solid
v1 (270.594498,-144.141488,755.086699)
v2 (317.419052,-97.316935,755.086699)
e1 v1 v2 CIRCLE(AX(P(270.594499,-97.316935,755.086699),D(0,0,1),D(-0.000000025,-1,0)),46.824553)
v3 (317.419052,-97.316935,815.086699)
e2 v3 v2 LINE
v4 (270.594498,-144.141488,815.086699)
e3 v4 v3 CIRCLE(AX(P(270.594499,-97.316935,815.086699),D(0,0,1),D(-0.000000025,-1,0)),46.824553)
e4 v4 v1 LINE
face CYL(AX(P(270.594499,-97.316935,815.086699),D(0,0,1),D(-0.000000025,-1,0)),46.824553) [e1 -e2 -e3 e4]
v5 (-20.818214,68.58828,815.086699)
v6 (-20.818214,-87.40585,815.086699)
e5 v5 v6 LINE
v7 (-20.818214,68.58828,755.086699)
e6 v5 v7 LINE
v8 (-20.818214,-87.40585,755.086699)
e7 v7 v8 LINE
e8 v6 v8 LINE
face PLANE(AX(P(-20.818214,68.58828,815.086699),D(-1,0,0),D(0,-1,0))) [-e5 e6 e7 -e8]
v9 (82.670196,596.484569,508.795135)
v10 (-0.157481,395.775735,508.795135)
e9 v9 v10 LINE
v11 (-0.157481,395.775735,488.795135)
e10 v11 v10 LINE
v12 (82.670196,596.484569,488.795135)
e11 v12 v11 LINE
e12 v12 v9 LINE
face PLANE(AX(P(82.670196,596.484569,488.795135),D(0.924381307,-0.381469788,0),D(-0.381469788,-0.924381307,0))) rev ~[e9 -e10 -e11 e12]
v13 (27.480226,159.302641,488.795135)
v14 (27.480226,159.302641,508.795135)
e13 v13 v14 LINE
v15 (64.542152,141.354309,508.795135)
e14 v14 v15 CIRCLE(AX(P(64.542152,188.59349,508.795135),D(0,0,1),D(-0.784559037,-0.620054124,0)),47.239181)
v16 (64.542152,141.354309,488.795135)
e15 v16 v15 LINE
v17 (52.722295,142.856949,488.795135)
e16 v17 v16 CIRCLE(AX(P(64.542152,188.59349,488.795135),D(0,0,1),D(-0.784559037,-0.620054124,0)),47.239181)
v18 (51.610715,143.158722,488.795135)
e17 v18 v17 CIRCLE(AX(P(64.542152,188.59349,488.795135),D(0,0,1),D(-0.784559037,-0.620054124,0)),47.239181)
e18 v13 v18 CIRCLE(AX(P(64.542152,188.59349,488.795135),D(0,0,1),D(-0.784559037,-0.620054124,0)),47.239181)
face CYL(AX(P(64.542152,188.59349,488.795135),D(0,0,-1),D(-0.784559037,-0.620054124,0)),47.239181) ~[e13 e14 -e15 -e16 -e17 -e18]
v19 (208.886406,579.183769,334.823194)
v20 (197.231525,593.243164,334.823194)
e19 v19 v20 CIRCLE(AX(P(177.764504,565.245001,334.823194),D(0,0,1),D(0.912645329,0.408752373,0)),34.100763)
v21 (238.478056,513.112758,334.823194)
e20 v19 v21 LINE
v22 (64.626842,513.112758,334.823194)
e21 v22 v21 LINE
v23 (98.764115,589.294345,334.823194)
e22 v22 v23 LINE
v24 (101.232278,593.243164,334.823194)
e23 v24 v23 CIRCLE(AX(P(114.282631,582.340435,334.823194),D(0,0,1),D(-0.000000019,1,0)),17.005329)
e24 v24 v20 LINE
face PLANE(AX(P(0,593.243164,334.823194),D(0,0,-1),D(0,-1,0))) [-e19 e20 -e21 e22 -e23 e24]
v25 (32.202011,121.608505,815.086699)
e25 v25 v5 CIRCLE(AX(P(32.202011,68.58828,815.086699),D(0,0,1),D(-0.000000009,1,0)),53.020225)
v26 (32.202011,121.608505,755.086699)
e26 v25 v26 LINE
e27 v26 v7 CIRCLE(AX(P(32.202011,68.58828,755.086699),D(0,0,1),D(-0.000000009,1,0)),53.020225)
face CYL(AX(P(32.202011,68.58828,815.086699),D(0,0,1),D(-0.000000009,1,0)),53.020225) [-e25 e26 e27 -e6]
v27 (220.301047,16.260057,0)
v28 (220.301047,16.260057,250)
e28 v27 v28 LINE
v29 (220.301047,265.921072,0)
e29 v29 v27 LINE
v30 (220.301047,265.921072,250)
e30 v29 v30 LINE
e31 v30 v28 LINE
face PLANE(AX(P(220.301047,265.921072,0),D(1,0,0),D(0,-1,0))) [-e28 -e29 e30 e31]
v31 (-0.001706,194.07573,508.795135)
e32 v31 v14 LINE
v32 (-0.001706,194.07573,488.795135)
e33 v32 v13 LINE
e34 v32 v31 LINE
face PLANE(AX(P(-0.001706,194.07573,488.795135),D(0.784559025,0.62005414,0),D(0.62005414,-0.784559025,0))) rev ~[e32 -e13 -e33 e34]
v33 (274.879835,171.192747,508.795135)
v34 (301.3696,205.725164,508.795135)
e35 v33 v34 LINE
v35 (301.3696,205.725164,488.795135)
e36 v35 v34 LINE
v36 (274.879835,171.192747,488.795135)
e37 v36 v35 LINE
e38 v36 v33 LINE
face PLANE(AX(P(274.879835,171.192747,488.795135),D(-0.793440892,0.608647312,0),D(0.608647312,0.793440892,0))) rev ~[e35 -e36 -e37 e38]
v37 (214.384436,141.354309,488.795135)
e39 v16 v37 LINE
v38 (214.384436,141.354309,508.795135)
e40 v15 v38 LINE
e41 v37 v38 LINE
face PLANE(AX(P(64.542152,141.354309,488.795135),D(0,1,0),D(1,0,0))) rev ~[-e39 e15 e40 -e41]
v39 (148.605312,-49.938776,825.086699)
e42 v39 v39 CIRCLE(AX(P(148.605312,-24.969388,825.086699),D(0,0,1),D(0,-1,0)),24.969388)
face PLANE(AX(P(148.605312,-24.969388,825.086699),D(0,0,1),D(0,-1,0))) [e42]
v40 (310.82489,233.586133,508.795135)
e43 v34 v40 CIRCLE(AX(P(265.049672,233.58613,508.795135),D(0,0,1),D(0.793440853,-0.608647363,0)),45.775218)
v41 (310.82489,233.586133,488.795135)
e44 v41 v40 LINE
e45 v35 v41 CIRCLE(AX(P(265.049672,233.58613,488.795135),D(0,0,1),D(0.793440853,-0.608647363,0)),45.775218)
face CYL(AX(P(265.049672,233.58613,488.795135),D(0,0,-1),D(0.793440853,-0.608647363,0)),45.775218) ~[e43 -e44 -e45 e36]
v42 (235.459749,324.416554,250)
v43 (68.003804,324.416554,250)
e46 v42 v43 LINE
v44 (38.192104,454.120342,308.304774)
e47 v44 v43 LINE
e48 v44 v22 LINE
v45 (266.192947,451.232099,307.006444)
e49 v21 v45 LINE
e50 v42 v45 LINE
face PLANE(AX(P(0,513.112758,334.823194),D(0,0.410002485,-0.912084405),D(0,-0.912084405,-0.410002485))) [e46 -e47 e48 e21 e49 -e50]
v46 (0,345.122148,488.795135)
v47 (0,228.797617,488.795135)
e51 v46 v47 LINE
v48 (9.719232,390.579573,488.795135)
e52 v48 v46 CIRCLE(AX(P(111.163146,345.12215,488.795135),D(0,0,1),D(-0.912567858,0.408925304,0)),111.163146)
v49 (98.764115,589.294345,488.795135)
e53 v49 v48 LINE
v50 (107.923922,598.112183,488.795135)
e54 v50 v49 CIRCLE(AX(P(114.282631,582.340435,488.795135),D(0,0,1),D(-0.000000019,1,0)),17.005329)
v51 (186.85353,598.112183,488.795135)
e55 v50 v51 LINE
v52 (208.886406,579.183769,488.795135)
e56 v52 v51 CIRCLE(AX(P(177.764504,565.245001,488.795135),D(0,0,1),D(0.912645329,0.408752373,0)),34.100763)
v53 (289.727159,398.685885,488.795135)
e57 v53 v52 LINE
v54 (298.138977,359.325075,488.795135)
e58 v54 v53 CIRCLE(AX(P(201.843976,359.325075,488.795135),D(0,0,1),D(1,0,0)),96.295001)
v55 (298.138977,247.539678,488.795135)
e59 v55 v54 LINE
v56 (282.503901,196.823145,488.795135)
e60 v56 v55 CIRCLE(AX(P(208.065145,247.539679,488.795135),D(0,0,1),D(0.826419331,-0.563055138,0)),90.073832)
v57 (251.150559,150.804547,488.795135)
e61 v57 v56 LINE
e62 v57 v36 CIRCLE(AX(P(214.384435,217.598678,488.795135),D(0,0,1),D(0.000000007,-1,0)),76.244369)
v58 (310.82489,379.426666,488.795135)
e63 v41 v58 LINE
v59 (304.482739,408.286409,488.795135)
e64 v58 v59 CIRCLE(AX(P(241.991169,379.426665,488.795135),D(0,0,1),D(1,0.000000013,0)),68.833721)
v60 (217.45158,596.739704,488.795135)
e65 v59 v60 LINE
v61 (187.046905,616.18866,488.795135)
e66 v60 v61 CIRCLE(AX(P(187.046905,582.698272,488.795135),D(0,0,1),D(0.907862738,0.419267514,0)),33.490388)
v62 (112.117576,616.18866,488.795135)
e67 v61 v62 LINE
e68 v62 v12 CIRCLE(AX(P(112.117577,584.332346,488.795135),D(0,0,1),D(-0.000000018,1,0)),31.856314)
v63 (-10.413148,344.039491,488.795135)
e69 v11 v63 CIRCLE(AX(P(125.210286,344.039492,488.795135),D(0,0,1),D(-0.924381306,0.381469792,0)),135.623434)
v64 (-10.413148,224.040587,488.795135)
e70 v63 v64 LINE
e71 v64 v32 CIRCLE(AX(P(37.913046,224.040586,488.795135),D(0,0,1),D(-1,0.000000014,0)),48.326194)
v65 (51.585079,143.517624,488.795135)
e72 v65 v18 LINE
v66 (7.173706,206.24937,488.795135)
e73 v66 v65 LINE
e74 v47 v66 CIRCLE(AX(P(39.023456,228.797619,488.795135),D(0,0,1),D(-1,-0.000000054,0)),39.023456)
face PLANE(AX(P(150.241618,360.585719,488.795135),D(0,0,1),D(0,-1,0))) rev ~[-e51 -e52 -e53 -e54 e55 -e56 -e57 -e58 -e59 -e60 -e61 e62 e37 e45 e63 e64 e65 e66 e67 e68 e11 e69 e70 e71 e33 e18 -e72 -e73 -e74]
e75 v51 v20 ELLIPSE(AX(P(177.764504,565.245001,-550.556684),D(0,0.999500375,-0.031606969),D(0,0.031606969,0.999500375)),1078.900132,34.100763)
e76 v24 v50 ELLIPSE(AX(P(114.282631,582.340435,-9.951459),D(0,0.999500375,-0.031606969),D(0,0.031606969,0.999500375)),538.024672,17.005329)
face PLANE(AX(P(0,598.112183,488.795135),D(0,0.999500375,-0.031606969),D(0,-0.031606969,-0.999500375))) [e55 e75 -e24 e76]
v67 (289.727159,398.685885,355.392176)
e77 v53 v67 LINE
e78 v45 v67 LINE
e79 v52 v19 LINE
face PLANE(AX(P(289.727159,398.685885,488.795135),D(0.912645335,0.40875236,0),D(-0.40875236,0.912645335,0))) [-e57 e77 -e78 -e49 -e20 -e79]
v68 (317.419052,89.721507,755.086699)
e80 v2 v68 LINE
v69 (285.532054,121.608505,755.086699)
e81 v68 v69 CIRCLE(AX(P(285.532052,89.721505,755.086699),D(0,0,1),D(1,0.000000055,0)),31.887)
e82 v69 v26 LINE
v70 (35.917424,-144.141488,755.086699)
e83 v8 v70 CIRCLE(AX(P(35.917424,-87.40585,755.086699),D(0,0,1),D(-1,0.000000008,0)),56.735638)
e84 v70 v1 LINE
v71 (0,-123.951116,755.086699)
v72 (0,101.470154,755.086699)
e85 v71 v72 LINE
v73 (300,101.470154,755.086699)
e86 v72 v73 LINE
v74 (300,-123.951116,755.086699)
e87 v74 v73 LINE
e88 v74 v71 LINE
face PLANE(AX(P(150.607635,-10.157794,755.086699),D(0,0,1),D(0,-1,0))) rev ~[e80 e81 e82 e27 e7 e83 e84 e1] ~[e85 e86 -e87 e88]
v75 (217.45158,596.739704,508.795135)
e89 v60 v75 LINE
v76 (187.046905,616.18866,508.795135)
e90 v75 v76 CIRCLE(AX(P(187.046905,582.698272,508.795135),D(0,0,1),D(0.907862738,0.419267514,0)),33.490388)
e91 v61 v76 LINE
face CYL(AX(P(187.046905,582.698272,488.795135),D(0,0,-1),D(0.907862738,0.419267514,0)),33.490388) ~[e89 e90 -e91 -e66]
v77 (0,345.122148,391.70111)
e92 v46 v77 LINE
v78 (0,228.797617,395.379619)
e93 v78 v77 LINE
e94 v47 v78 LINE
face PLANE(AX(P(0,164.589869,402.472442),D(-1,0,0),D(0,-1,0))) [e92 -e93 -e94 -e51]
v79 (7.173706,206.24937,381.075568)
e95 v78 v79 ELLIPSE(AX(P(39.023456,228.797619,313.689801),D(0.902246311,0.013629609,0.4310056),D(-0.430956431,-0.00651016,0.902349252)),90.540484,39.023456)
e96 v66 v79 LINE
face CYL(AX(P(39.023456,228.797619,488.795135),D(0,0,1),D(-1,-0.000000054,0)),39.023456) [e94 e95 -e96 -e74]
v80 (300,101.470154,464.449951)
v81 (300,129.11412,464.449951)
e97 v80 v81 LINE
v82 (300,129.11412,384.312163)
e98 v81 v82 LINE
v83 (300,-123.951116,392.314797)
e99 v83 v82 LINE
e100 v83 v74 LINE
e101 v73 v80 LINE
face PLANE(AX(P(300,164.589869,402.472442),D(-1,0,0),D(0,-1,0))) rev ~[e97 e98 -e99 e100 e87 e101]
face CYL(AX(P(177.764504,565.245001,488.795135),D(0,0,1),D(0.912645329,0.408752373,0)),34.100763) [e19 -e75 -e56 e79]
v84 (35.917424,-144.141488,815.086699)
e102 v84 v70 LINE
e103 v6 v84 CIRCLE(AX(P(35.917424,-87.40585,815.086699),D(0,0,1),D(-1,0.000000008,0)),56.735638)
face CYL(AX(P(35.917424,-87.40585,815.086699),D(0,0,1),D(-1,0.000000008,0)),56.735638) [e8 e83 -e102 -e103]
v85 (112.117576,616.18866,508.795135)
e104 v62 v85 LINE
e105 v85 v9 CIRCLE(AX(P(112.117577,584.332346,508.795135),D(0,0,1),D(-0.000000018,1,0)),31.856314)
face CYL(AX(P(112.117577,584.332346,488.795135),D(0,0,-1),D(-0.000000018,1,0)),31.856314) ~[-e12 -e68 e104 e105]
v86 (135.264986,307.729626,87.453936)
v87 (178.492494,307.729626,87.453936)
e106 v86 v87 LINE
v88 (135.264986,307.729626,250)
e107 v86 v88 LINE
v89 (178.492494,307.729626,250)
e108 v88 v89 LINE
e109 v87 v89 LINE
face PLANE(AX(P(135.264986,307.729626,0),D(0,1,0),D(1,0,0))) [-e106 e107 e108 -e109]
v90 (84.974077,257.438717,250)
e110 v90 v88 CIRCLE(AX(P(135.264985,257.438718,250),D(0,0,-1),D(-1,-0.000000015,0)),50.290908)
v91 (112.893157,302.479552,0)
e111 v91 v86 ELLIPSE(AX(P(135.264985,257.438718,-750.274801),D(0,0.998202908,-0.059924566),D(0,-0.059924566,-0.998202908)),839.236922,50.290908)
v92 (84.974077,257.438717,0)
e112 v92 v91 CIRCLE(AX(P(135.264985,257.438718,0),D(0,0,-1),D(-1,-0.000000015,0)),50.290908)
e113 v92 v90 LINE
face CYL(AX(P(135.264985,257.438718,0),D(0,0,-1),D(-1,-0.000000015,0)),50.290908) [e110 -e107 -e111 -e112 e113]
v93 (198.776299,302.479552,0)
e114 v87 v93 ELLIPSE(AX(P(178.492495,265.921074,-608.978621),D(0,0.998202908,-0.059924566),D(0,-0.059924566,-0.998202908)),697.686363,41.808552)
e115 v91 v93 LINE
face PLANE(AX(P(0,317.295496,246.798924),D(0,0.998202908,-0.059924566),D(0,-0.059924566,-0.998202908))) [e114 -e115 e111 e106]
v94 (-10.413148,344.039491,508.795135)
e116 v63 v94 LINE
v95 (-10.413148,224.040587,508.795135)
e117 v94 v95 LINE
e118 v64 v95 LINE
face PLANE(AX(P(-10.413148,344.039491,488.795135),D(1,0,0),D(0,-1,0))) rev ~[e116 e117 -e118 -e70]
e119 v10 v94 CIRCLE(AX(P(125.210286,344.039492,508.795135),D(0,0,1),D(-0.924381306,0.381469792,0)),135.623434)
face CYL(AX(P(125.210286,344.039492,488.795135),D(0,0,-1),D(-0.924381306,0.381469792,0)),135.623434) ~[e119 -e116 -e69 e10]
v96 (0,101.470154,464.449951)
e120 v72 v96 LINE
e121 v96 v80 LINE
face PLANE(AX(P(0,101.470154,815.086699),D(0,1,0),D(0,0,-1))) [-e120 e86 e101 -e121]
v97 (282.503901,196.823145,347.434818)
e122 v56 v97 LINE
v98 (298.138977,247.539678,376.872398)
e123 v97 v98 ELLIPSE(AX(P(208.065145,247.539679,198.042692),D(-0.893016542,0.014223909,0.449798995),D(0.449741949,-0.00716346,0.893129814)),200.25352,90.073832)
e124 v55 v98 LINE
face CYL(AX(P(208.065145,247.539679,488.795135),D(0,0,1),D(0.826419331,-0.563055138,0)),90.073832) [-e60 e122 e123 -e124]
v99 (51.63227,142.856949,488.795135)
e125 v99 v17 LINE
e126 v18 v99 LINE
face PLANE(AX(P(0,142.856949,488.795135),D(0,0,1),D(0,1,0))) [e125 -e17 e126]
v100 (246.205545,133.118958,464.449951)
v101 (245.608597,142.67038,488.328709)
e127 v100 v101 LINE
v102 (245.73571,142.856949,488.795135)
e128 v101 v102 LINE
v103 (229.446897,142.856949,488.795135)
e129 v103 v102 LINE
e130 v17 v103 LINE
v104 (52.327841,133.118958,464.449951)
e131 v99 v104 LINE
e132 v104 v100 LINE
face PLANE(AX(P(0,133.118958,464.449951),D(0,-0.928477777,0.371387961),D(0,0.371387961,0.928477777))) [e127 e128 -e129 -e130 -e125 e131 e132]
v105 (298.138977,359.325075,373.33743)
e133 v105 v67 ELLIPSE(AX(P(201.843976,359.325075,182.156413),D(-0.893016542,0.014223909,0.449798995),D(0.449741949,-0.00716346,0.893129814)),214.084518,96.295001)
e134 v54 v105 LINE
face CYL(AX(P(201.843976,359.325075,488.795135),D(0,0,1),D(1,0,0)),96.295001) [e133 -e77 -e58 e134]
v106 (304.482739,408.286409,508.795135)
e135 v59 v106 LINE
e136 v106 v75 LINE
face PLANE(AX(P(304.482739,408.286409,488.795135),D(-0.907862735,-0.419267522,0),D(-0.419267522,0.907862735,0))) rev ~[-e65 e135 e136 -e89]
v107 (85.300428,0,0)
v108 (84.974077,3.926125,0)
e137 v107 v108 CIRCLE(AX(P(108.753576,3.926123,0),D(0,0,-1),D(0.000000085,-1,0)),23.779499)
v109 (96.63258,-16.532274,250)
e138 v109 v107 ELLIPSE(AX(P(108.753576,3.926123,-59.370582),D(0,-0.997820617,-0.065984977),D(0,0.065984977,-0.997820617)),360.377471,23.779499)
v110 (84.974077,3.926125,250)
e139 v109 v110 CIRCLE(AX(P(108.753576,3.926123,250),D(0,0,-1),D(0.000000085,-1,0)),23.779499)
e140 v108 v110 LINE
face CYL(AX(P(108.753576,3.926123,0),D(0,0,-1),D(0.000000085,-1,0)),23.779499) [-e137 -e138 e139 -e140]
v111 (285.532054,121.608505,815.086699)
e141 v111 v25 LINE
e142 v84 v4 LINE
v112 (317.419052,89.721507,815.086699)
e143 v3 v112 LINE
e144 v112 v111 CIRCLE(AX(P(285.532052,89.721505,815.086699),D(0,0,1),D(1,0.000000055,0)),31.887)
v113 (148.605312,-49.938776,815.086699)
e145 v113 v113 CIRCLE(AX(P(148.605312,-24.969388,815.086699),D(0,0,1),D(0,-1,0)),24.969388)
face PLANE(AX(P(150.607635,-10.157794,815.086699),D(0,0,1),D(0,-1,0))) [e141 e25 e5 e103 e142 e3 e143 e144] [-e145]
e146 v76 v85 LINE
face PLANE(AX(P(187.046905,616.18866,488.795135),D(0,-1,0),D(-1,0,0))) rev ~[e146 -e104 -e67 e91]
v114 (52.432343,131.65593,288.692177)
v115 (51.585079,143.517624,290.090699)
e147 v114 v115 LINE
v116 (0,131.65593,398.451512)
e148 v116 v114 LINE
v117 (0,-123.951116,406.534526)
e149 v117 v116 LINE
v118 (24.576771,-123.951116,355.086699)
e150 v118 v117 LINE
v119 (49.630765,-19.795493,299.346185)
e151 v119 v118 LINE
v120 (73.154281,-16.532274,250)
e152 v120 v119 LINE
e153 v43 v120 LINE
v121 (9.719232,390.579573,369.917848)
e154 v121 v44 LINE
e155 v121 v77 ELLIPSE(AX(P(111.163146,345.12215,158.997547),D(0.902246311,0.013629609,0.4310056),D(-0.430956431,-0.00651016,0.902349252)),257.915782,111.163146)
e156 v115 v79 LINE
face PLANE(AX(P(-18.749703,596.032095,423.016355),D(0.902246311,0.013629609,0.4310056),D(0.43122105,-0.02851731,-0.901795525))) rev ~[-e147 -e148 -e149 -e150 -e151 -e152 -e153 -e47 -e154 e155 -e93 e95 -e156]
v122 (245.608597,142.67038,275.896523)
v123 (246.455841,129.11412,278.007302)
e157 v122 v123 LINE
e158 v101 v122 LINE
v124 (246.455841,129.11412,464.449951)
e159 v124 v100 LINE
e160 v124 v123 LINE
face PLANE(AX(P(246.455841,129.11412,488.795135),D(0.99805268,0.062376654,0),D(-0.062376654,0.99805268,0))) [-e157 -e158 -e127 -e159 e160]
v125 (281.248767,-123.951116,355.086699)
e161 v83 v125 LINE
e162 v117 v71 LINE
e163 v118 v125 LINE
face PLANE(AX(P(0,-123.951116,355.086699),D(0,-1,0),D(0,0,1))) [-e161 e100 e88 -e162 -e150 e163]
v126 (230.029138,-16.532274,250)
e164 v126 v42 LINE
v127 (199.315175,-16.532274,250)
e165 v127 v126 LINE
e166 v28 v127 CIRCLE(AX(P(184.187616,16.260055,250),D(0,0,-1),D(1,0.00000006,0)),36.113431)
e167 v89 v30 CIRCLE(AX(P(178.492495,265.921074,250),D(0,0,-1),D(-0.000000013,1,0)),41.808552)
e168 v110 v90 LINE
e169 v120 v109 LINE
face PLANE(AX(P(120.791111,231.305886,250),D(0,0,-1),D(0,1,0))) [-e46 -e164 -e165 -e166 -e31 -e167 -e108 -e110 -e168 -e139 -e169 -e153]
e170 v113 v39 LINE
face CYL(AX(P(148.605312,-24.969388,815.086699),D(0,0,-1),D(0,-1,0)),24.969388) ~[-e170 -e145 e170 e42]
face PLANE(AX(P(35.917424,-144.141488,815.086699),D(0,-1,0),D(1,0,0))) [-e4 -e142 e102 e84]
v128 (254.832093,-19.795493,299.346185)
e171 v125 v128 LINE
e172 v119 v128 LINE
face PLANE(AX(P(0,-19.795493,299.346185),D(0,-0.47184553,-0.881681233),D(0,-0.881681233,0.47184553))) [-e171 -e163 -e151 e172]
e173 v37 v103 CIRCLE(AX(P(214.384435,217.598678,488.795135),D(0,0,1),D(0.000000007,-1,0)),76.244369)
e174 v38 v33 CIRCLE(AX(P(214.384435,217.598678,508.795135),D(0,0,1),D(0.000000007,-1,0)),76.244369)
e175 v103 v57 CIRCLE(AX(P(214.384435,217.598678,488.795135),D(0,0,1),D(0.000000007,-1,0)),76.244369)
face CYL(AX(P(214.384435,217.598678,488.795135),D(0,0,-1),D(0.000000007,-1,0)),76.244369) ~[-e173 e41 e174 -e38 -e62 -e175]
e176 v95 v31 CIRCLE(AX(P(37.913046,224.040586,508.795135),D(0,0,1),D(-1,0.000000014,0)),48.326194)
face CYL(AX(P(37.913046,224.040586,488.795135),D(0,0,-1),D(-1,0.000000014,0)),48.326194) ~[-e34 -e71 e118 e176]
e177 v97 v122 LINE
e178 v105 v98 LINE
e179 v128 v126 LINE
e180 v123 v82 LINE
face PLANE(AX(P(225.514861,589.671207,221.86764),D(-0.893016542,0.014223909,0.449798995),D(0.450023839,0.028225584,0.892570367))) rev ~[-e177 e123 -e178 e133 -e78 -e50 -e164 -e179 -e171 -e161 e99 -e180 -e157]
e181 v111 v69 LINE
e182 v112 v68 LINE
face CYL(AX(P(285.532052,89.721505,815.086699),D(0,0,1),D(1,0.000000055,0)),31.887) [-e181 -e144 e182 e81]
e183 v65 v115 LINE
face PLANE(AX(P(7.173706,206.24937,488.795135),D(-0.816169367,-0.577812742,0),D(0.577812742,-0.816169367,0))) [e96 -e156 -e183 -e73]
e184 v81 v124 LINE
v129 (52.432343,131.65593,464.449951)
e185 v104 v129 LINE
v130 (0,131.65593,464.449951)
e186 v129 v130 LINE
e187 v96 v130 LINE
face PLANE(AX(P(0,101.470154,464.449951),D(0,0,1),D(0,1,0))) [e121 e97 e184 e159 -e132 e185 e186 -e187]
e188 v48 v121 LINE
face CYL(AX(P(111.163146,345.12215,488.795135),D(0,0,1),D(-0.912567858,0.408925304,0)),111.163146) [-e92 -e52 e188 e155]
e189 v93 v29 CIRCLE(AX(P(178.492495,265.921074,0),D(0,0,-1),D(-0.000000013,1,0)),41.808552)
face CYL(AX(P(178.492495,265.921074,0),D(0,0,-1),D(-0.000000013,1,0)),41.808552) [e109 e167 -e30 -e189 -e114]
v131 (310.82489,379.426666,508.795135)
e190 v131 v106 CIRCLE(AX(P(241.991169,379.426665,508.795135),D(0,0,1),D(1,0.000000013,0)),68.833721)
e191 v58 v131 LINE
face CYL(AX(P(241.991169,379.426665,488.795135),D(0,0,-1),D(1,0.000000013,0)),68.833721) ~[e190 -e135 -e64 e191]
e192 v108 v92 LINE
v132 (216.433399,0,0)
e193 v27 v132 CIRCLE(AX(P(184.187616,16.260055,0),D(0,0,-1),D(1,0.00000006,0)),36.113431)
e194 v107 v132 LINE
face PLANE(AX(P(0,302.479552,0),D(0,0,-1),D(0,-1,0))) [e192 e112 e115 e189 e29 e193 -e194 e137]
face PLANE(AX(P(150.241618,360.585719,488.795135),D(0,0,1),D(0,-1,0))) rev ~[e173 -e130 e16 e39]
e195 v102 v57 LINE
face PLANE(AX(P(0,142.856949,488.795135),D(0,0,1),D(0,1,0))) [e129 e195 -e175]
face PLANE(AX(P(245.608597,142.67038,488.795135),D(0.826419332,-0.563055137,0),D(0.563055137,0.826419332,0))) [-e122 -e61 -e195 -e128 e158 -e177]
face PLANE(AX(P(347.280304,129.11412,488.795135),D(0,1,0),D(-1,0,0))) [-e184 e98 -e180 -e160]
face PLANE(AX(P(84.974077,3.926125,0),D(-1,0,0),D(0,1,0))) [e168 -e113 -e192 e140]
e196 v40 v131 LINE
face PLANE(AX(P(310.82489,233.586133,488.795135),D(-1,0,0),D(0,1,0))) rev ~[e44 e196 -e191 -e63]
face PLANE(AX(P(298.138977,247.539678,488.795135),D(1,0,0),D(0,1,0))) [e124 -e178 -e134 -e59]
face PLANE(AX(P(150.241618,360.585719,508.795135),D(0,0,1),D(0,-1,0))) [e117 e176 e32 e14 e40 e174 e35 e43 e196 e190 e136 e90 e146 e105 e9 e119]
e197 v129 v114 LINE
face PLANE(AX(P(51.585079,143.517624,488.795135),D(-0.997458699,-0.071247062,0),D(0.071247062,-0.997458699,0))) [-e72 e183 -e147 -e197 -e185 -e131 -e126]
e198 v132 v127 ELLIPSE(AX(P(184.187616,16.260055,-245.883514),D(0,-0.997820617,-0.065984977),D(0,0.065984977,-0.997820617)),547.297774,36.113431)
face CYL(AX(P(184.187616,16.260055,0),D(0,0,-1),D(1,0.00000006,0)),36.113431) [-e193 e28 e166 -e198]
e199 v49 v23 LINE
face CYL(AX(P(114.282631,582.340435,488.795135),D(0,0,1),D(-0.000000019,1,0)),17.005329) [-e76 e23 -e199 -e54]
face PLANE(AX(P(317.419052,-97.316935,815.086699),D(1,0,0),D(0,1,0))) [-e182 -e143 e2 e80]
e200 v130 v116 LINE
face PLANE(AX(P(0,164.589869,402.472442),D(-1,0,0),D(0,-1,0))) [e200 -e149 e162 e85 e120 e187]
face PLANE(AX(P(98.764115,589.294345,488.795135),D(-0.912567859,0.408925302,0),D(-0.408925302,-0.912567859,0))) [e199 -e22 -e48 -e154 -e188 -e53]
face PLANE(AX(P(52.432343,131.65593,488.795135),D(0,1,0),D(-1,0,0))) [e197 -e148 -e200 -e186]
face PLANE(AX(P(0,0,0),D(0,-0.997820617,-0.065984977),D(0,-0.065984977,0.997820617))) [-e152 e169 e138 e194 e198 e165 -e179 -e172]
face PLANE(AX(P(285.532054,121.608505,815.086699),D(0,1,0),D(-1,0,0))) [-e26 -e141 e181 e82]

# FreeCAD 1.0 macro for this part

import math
import FreeCAD as App
import Part
import Sketcher
from FreeCAD import Vector
Q = App.Units.Quantity


def add_polygon(sketch, points):
    """Adds a closed chain of lines whose ends are joined by coincident constraints."""
    first, n = sketch.GeometryCount, len(points)
    for a, b in zip(points, points[1:] + points[:1]):
        sketch.addGeometry(Part.LineSegment(App.Vector(*a, 0), App.Vector(*b, 0)), False)
    for i in range(n):
        sketch.addConstraint(Sketcher.Constraint("Coincident", first + i, 2, first + (i + 1) % n, 1))

doc = App.newDocument("Part")
body = doc.addObject("PartDesign::Body", "Body")

# Sketch on YZ plane
sketch1 = doc.addObject("Sketcher::SketchObject", "Sketch")
body.addObject(sketch1)
sketch1.AttachmentSupport = (doc.YZ_Plane, [""])
sketch1.MapMode = "FlatFace"
add_polygon(sketch1, [(-19.795493, 299.346185), (0, 0), (302.479552, 0), (317.295496, 246.798924), (513.112758, 334.823194), (593.243164, 334.823194), (598.112183, 488.795135), (142.856949, 488.795135), (133.118958, 464.449951), (101.470154, 464.449951), (101.470154, 815.086699), (-123.951116, 815.086699), (-123.951116, 355.086699)])  # lines 0-12
sketch1.addConstraint(Sketcher.Constraint("Horizontal", 1))
sketch1.addConstraint(Sketcher.Constraint("Horizontal", 4))
sketch1.addConstraint(Sketcher.Constraint("Horizontal", 6))
sketch1.addConstraint(Sketcher.Constraint("Horizontal", 8))
sketch1.addConstraint(Sketcher.Constraint("Vertical", 9))
sketch1.addConstraint(Sketcher.Constraint("Horizontal", 10))
sketch1.addConstraint(Sketcher.Constraint("Vertical", 11))
sketch1.addConstraint(Sketcher.Constraint("Coincident", 0, 2, -1, 1))
sketch1.addConstraint(Sketcher.Constraint("DistanceY", 11, 2, 11, 1, Q("460 mm")))
sketch1.addConstraint(Sketcher.Constraint("Distance", 0, Q("300 mm")))
sketch1.addConstraint(Sketcher.Constraint("DistanceX", 1, 1, 1, 2, Q("302.479552 mm")))
sketch1.addConstraint(Sketcher.Constraint("DistanceX", 10, 2, 10, 1, Q("225.42127 mm")))
sketch1.addConstraint(Sketcher.Constraint("DistanceY", -1, 1, 9, 2, Q("815.086699 mm")))
sketch1.addConstraint(Sketcher.Constraint("DistanceX", 7, 2, 3, 2, Q("379.9938 mm")))
sketch1.addConstraint(Sketcher.Constraint("Distance", 3, Q("214.69204 mm")))
sketch1.addConstraint(Sketcher.Constraint("Distance", 12, Q("118.13297 mm")))
sketch1.addConstraint(Sketcher.Constraint("DistanceX", 4, 1, 4, 2, Q("80.130406 mm")))
sketch1.addConstraint(Sketcher.Constraint("DistanceX", 6, 2, 6, 1, Q("455.255234 mm")))
sketch1.addConstraint(Sketcher.Constraint("DistanceX", 8, 2, 8, 1, Q("31.648804 mm")))
sketch1.addConstraint(Sketcher.Constraint("DistanceY", 9, 1, 9, 2, Q("350.636748 mm")))
sketch1.addConstraint(Sketcher.Constraint("DistanceX", -1, 1, 3, 2, Q("513.112758 mm")))
sketch1.addConstraint(Sketcher.Constraint("DistanceX", -1, 1, 6, 2, Q("142.856949 mm")))
sketch1.addConstraint(Sketcher.Constraint("DistanceX", 2, 2, 3, 2, Q("195.817262 mm")))
sketch1.addConstraint(Sketcher.Constraint("DistanceY", 4, 2, 5, 2, Q("153.971941 mm")))
sketch1.addConstraint(Sketcher.Constraint("DistanceY", 12, 2, 6, 2, Q("189.44895 mm")))
pad1 = doc.addObject("PartDesign::Pad", "Pad")
body.addObject(pad1)
pad1.Profile = sketch1
pad1.Length = 300

# Sketch on XY plane
sketch2 = doc.addObject("Sketcher::SketchObject", "Sketch001")
body.addObject(sketch2)
sketch2.AttachmentSupport = (doc.XY_Plane, [""])
sketch2.MapMode = "FlatFace"
sketch2.AttachmentOffset = App.Placement(Vector(0, 0, 488.795135), App.Rotation())
sketch2.addGeometry(Part.LineSegment(Vector(208.886406, 579.183769, 0), Vector(289.727159, 398.685885, 0)), False)
sketch2.addGeometry(Part.ArcOfCircle(Part.Circle(Vector(201.843976, 359.325075, 0), Vector(0, 0, 1), 96.295001), math.radians(0), math.radians(24.126485)), False)
sketch2.addGeometry(Part.LineSegment(Vector(298.138977, 359.325075, 0), Vector(298.138977, 247.539678, 0)), False)
sketch2.addGeometry(Part.ArcOfCircle(Part.Circle(Vector(208.065145, 247.539679, 0), Vector(0, 0, 1), 90.073832), math.radians(-34.267345), math.radians(-0.000001)), False)
sketch2.addGeometry(Part.LineSegment(Vector(282.503901, 196.823145, 0), Vector(245.608597, 142.67038, 0)), False)
sketch2.addGeometry(Part.LineSegment(Vector(245.608597, 142.67038, 0), Vector(246.455841, 129.11412, 0)), False)
sketch2.addGeometry(Part.LineSegment(Vector(246.455841, 129.11412, 0), Vector(347.280304, 129.11412, 0)), False)
sketch2.addGeometry(Part.LineSegment(Vector(347.280304, 129.11412, 0), Vector(347.280304, 645.098022, 0)), False)
sketch2.addGeometry(Part.LineSegment(Vector(347.280304, 645.098022, 0), Vector(-48.39209, 645.098022, 0)), False)
sketch2.addGeometry(Part.LineSegment(Vector(-48.39209, 645.098022, 0), Vector(-48.39209, 131.65593, 0)), False)
sketch2.addGeometry(Part.LineSegment(Vector(-48.39209, 131.65593, 0), Vector(52.432343, 131.65593, 0)), False)
sketch2.addGeometry(Part.LineSegment(Vector(52.432343, 131.65593, 0), Vector(51.585079, 143.517624, 0)), False)
sketch2.addGeometry(Part.LineSegment(Vector(51.585079, 143.517624, 0), Vector(7.173706, 206.24937, 0)), False)
sketch2.addGeometry(Part.ArcOfCircle(Part.Circle(Vector(39.023456, 228.797619, 0), Vector(0, 0, 1), 39.023456), math.radians(-179.999997), math.radians(-144.703152)), False)
sketch2.addGeometry(Part.LineSegment(Vector(0, 228.797617, 0), Vector(0, 345.122148, 0)), False)
sketch2.addGeometry(Part.ArcOfCircle(Part.Circle(Vector(111.163146, 345.12215, 0), Vector(0, 0, 1), 111.163146), math.radians(155.862658), math.radians(180.000001)), False)
sketch2.addGeometry(Part.LineSegment(Vector(9.719232, 390.579573, 0), Vector(98.764115, 589.294345, 0)), False)
sketch2.addGeometry(Part.ArcOfCircle(Part.Circle(Vector(114.282631, 582.340435, 0), Vector(0, 0, 1), 17.005329), math.radians(90.000001), math.radians(155.862656)), False)
sketch2.addGeometry(Part.LineSegment(Vector(114.282631, 599.345764, 0), Vector(177.764505, 599.345764, 0)), False)
sketch2.addGeometry(Part.ArcOfCircle(Part.Circle(Vector(177.764504, 565.245001, 0), Vector(0, 0, 1), 34.100763), math.radians(24.126485), math.radians(89.999999)), False)
sketch2.addConstraint(Sketcher.Constraint("Tangent", 0, 2, 1, 2))
sketch2.addConstraint(Sketcher.Constraint("Tangent", 1, 1, 2, 1))
sketch2.addConstraint(Sketcher.Constraint("Tangent", 2, 2, 3, 2))
sketch2.addConstraint(Sketcher.Constraint("Tangent", 3, 1, 4, 1))
sketch2.addConstraint(Sketcher.Constraint("Coincident", 4, 2, 5, 1))
sketch2.addConstraint(Sketcher.Constraint("Coincident", 5, 2, 6, 1))
sketch2.addConstraint(Sketcher.Constraint("Coincident", 6, 2, 7, 1))
sketch2.addConstraint(Sketcher.Constraint("Coincident", 7, 2, 8, 1))
sketch2.addConstraint(Sketcher.Constraint("Coincident", 8, 2, 9, 1))
sketch2.addConstraint(Sketcher.Constraint("Coincident", 9, 2, 10, 1))
sketch2.addConstraint(Sketcher.Constraint("Coincident", 10, 2, 11, 1))
sketch2.addConstraint(Sketcher.Constraint("Coincident", 11, 2, 12, 1))
sketch2.addConstraint(Sketcher.Constraint("Tangent", 12, 2, 13, 2))
sketch2.addConstraint(Sketcher.Constraint("Tangent", 13, 1, 14, 1))
sketch2.addConstraint(Sketcher.Constraint("Tangent", 14, 2, 15, 2))
sketch2.addConstraint(Sketcher.Constraint("Tangent", 15, 1, 16, 1))
sketch2.addConstraint(Sketcher.Constraint("Tangent", 16, 2, 17, 2))
sketch2.addConstraint(Sketcher.Constraint("Tangent", 17, 1, 18, 1))
sketch2.addConstraint(Sketcher.Constraint("Tangent", 18, 2, 19, 2))
sketch2.addConstraint(Sketcher.Constraint("Tangent", 19, 1, 0, 1))
sketch2.addConstraint(Sketcher.Constraint("Vertical", 2))
sketch2.addConstraint(Sketcher.Constraint("Horizontal", 6))
sketch2.addConstraint(Sketcher.Constraint("Vertical", 7))
sketch2.addConstraint(Sketcher.Constraint("Horizontal", 8))
sketch2.addConstraint(Sketcher.Constraint("Vertical", 9))
sketch2.addConstraint(Sketcher.Constraint("Horizontal", 10))
sketch2.addConstraint(Sketcher.Constraint("Vertical", 14))
sketch2.addConstraint(Sketcher.Constraint("Horizontal", 18))
sketch2.addConstraint(Sketcher.Constraint("PointOnObject", 13, 1, -2))
sketch2.addConstraint(Sketcher.Constraint("Radius", 1, Q("96.295001 mm")))
sketch2.addConstraint(Sketcher.Constraint("Radius", 17, Q("17.005329 mm")))
sketch2.addConstraint(Sketcher.Constraint("DistanceY", 7, 1, 7, 2, Q("515.983902 mm")))
sketch2.addConstraint(Sketcher.Constraint("DistanceY", -1, 1, 19, 3, Q("565.245001 mm")))
sketch2.addConstraint(Sketcher.Constraint("Radius", 3, Q("90.073832 mm")))
sketch2.addConstraint(Sketcher.Constraint("Radius", 13, Q("39.023456 mm")))
sketch2.addConstraint(Sketcher.Constraint("Radius", 15, Q("111.163146 mm")))
sketch2.addConstraint(Sketcher.Constraint("Radius", 19, Q("34.100763 mm")))
sketch2.addConstraint(Sketcher.Constraint("DistanceX", 15, 3, 3, 3, Q("96.901998 mm")))
sketch2.addConstraint(Sketcher.Constraint("Distance", 0, Q("197.7744 mm")))
sketch2.addConstraint(Sketcher.Constraint("DistanceY", 9, 2, 9, 1, Q("513.442092 mm")))
sketch2.addConstraint(Sketcher.Constraint("DistanceY", 14, 1, 14, 2, Q("116.324531 mm")))
sketch2.addConstraint(Sketcher.Constraint("DistanceX", -1, 1, 3, 1, Q("282.503901 mm")))
sketch2.addConstraint(Sketcher.Constraint("DistanceY", 4, 2, 3, 3, Q("104.869299 mm")))
sketch2.addConstraint(Sketcher.Constraint("DistanceY", 5, 2, 13, 3, Q("99.683499 mm")))
sketch2.addConstraint(Sketcher.Constraint("DistanceX", 19, 3, 7, 2, Q("169.5158 mm")))
sketch2.addConstraint(Sketcher.Constraint("DistanceX", 10, 2, 3, 3, Q("155.632802 mm")))
sketch2.addConstraint(Sketcher.Constraint("DistanceX", 15, 1, 17, 1, Q("104.563399 mm")))
sketch2.addConstraint(Sketcher.Constraint("Distance", 5, Q("13.58271 mm")))
sketch2.addConstraint(Sketcher.Constraint("Distance", 16, Q("217.75342 mm")))
sketch2.addConstraint(Sketcher.Constraint("DistanceX", 6, 1, 6, 2, Q("100.824463 mm")))
sketch2.addConstraint(Sketcher.Constraint("DistanceX", 8, 2, 8, 1, Q("395.672394 mm")))
sketch2.addConstraint(Sketcher.Constraint("DistanceX", 10, 1, 10, 2, Q("100.824433 mm")))
sketch2.addConstraint(Sketcher.Constraint("DistanceX", -1, 1, 11, 2, Q("51.585079 mm")))
sketch2.addConstraint(Sketcher.Constraint("DistanceY", -1, 1, 12, 2, Q("206.24937 mm")))
pocket1 = doc.addObject("PartDesign::Pocket", "Pocket")
body.addObject(pocket1)
pocket1.Profile = sketch2
pocket1.Type = "ThroughAll"

# Sketch on XY plane
sketch3 = doc.addObject("Sketcher::SketchObject", "Sketch002")
body.addObject(sketch3)
sketch3.AttachmentSupport = (doc.XY_Plane, [""])
sketch3.MapMode = "FlatFace"
add_polygon(sketch3, [(365.734558, -178.085495), (-124.152336, -178.085495), (-124.152336, 640.697266), (365.734558, 640.697266)])  # lines 0-3
sketch3.addGeometry(Part.LineSegment(Vector(108.753578, -19.853376, 0), Vector(184.187614, -19.853376, 0)), False)  # 4
sketch3.addGeometry(Part.ArcOfCircle(Part.Circle(Vector(184.187616, 16.260055, 0), Vector(0, 0, 1), 36.113431), math.radians(-90.000003), math.radians(0.000003)), False)  # 5
sketch3.addGeometry(Part.LineSegment(Vector(220.301047, 16.260057, 0), Vector(220.301047, 265.921072, 0)), False)  # 6
sketch3.addGeometry(Part.ArcOfCircle(Part.Circle(Vector(178.492495, 265.921074, 0), Vector(0, 0, 1), 41.808552), math.radians(-0.000002), math.radians(90.000001)), False)  # 7
sketch3.addGeometry(Part.LineSegment(Vector(178.492494, 307.729626, 0), Vector(135.264986, 307.729626, 0)), False)  # 8
sketch3.addGeometry(Part.ArcOfCircle(Part.Circle(Vector(135.264985, 257.438718, 0), Vector(0, 0, 1), 50.290908), math.radians(89.999999), math.radians(180.000001)), False)  # 9
sketch3.addGeometry(Part.LineSegment(Vector(84.974077, 257.438717, 0), Vector(84.974077, 3.926125, 0)), False)  # 10
sketch3.addGeometry(Part.ArcOfCircle(Part.Circle(Vector(108.753576, 3.926123, 0), Vector(0, 0, 1), 23.779499), math.radians(179.999995), math.radians(270.000005)), False)  # 11
sketch3.addConstraint(Sketcher.Constraint("Tangent", 4, 2, 5, 1))
sketch3.addConstraint(Sketcher.Constraint("Tangent", 5, 2, 6, 1))
sketch3.addConstraint(Sketcher.Constraint("Tangent", 6, 2, 7, 1))
sketch3.addConstraint(Sketcher.Constraint("Tangent", 7, 2, 8, 1))
sketch3.addConstraint(Sketcher.Constraint("Tangent", 8, 2, 9, 1))
sketch3.addConstraint(Sketcher.Constraint("Tangent", 9, 2, 10, 1))
sketch3.addConstraint(Sketcher.Constraint("Tangent", 10, 2, 11, 1))
sketch3.addConstraint(Sketcher.Constraint("Tangent", 11, 2, 4, 1))
sketch3.addConstraint(Sketcher.Constraint("Horizontal", 0))
sketch3.addConstraint(Sketcher.Constraint("Vertical", 1))
sketch3.addConstraint(Sketcher.Constraint("Horizontal", 2))
sketch3.addConstraint(Sketcher.Constraint("Vertical", 3))
sketch3.addConstraint(Sketcher.Constraint("Horizontal", 4))
sketch3.addConstraint(Sketcher.Constraint("Vertical", 6))
sketch3.addConstraint(Sketcher.Constraint("Horizontal", 8))
sketch3.addConstraint(Sketcher.Constraint("Vertical", 10))
sketch3.addConstraint(Sketcher.Constraint("Radius", 11, Q("23.779499 mm")))
sketch3.addConstraint(Sketcher.Constraint("Radius", 5, Q("36.113431 mm")))
sketch3.addConstraint(Sketcher.Constraint("Radius", 9, Q("50.290908 mm")))
sketch3.addConstraint(Sketcher.Constraint("Radius", 7, Q("41.808552 mm")))
sketch3.addConstraint(Sketcher.Constraint("DistanceY", 1, 1, 1, 2, Q("818.782761 mm")))
sketch3.addConstraint(Sketcher.Constraint("DistanceY", 10, 2, 10, 1, Q("253.512592 mm")))
sketch3.addConstraint(Sketcher.Constraint("DistanceX", 0, 2, 0, 1, Q("489.886894 mm")))
sketch3.addConstraint(Sketcher.Constraint("DistanceX", 4, 1, 4, 2, Q("75.434036 mm")))
sketch3.addConstraint(Sketcher.Constraint("DistanceX", -1, 1, 2, 2, Q("365.734558 mm")))
sketch3.addConstraint(Sketcher.Constraint("DistanceY", -1, 1, 6, 2, Q("265.921072 mm")))
sketch3.addConstraint(Sketcher.Constraint("DistanceX", -1, 1, 11, 2, Q("108.753578 mm")))
sketch3.addConstraint(Sketcher.Constraint("DistanceY", 0, 2, 5, 3, Q("194.345549 mm")))
pocket2 = doc.addObject("PartDesign::Pocket", "Pocket001")
body.addObject(pocket2)
pocket2.Profile = sketch3
pocket2.Length = 250
pocket2.Reversed = True

# Sketch on an angled plane
sketch4 = doc.addObject("Sketcher::SketchObject", "Sketch003")
body.addObject(sketch4)
sketch4.Placement = App.Placement(Vector(0, 582.073055, -18.406761), App.Rotation(Vector(0, 0.031607012, 0.999500374), Vector(1.000000001, 0, 0), Vector(0, 0.999500374, -0.031607012), "ZXY"))
add_polygon(sketch4, [(435.498799, 463.280182), (-86.974939, 463.280182), (-86.974939, 225.514861), (240.394508, 225.514861), (435.498799, 323.835081)])  # lines 0-4
add_polygon(sketch4, [(-86.974939, -130.245743), (441.643773, -130.245743), (441.643773, -18.749703), (232.713184, 81.106918), (-86.974939, 81.106918)])  # lines 5-9
sketch4.addConstraint(Sketcher.Constraint("Horizontal", 0))
sketch4.addConstraint(Sketcher.Constraint("Vertical", 1))
sketch4.addConstraint(Sketcher.Constraint("Horizontal", 2))
sketch4.addConstraint(Sketcher.Constraint("Vertical", 4))
sketch4.addConstraint(Sketcher.Constraint("Horizontal", 5))
sketch4.addConstraint(Sketcher.Constraint("Vertical", 6))
sketch4.addConstraint(Sketcher.Constraint("Horizontal", 8))
sketch4.addConstraint(Sketcher.Constraint("Vertical", 9))
sketch4.addConstraint(Sketcher.Constraint("Vertical", 1, 2, 8, 2))
sketch4.addConstraint(Sketcher.Constraint("DistanceY", 4, 1, 4, 2, Q("139.445101 mm")))
sketch4.addConstraint(Sketcher.Constraint("Distance", 3, Q("218.477802 mm")))
sketch4.addConstraint(Sketcher.Constraint("DistanceX", 0, 2, 0, 1, Q("522.473738 mm")))
sketch4.addConstraint(Sketcher.Constraint("DistanceY", 1, 2, 1, 1, Q("237.76532 mm")))
sketch4.addConstraint(Sketcher.Constraint("DistanceY", 6, 1, 6, 2, Q("111.49604 mm")))
sketch4.addConstraint(Sketcher.Constraint("DistanceY", 9, 2, 9, 1, Q("211.352661 mm")))
sketch4.addConstraint(Sketcher.Constraint("DistanceX", -1, 1, 3, 2, Q("435.498799 mm")))
sketch4.addConstraint(Sketcher.Constraint("Distance", 7, Q("231.56713 mm")))
sketch4.addConstraint(Sketcher.Constraint("DistanceX", 5, 1, 5, 2, Q("528.618712 mm")))
sketch4.addConstraint(Sketcher.Constraint("DistanceY", -1, 1, 0, 2, Q("463.280182 mm")))
sketch4.addConstraint(Sketcher.Constraint("DistanceY", -1, 1, 7, 2, Q("81.106918 mm")))
pocket3 = doc.addObject("PartDesign::Pocket", "Pocket002")
body.addObject(pocket3)
pocket3.Profile = sketch4
pocket3.Type = "ThroughAll"

# Sketch on XY plane
sketch5 = doc.addObject("Sketcher::SketchObject", "Sketch004")
body.addObject(sketch5)
sketch5.AttachmentSupport = (doc.XY_Plane, [""])
sketch5.MapMode = "FlatFace"
sketch5.AttachmentOffset = App.Placement(Vector(0, 0, 488.795135), App.Rotation())
sketch5.addGeometry(Part.LineSegment(Vector(274.879835, 171.192747, 0), Vector(301.3696, 205.725164, 0)), False)
sketch5.addGeometry(Part.ArcOfCircle(Part.Circle(Vector(265.049672, 233.58613, 0), Vector(0, 0, 1), 45.775218), math.radians(-37.491763), math.radians(0.000004)), False)
sketch5.addGeometry(Part.LineSegment(Vector(310.82489, 233.586133, 0), Vector(310.82489, 379.426666, 0)), False)
sketch5.addGeometry(Part.ArcOfCircle(Part.Circle(Vector(241.991169, 379.426665, 0), Vector(0, 0, 1), 68.833721), math.radians(0.000001), math.radians(24.788352)), False)
sketch5.addGeometry(Part.LineSegment(Vector(304.482739, 408.286409, 0), Vector(217.45158, 596.739704, 0)), False)
sketch5.addGeometry(Part.ArcOfCircle(Part.Circle(Vector(187.046905, 582.698272, 0), Vector(0, 0, 1), 33.490388), math.radians(24.788351), math.radians(90)), False)
sketch5.addGeometry(Part.LineSegment(Vector(187.046905, 616.18866, 0), Vector(112.117576, 616.18866, 0)), False)
sketch5.addGeometry(Part.ArcOfCircle(Part.Circle(Vector(112.117577, 584.332346, 0), Vector(0, 0, 1), 31.856314), math.radians(90.000001), math.radians(157.575242)), False)
sketch5.addGeometry(Part.LineSegment(Vector(82.670196, 596.484569, 0), Vector(-0.157481, 395.775735, 0)), False)
sketch5.addGeometry(Part.ArcOfCircle(Part.Circle(Vector(125.210286, 344.039492, 0), Vector(0, 0, 1), 135.623434), math.radians(157.575245), math.radians(180)), False)
sketch5.addGeometry(Part.LineSegment(Vector(-10.413148, 344.039491, 0), Vector(-10.413148, 224.040587, 0)), False)
sketch5.addGeometry(Part.ArcOfCircle(Part.Circle(Vector(37.913046, 224.040586, 0), Vector(0, 0, 1), 48.326194), math.radians(179.999999), math.radians(218.320087)), False)
sketch5.addGeometry(Part.LineSegment(Vector(-0.001706, 194.07573, 0), Vector(27.480226, 159.302641, 0)), False)
sketch5.addGeometry(Part.ArcOfCircle(Part.Circle(Vector(64.542152, 188.59349, 0), Vector(0, 0, 1), 47.239181), math.radians(-141.679913), math.radians(-90)), False)
sketch5.addGeometry(Part.LineSegment(Vector(64.542152, 141.354309, 0), Vector(214.384436, 141.354309, 0)), False)
sketch5.addGeometry(Part.ArcOfCircle(Part.Circle(Vector(214.384435, 217.598678, 0), Vector(0, 0, 1), 76.244369), math.radians(-90), math.radians(-37.49176)), False)
sketch5.addConstraint(Sketcher.Constraint("Tangent", 0, 2, 1, 1))
sketch5.addConstraint(Sketcher.Constraint("Tangent", 1, 2, 2, 1))
sketch5.addConstraint(Sketcher.Constraint("Tangent", 2, 2, 3, 1))
sketch5.addConstraint(Sketcher.Constraint("Tangent", 3, 2, 4, 1))
sketch5.addConstraint(Sketcher.Constraint("Tangent", 4, 2, 5, 1))
sketch5.addConstraint(Sketcher.Constraint("Tangent", 5, 2, 6, 1))
sketch5.addConstraint(Sketcher.Constraint("Tangent", 6, 2, 7, 1))
sketch5.addConstraint(Sketcher.Constraint("Tangent", 7, 2, 8, 1))
sketch5.addConstraint(Sketcher.Constraint("Tangent", 8, 2, 9, 1))
sketch5.addConstraint(Sketcher.Constraint("Tangent", 9, 2, 10, 1))
sketch5.addConstraint(Sketcher.Constraint("Tangent", 10, 2, 11, 1))
sketch5.addConstraint(Sketcher.Constraint("Tangent", 11, 2, 12, 1))
sketch5.addConstraint(Sketcher.Constraint("Tangent", 12, 2, 13, 1))
sketch5.addConstraint(Sketcher.Constraint("Tangent", 13, 2, 14, 1))
sketch5.addConstraint(Sketcher.Constraint("Tangent", 14, 2, 15, 1))
sketch5.addConstraint(Sketcher.Constraint("Tangent", 15, 2, 0, 1))
sketch5.addConstraint(Sketcher.Constraint("Vertical", 2))
sketch5.addConstraint(Sketcher.Constraint("Horizontal", 6))
sketch5.addConstraint(Sketcher.Constraint("Vertical", 10))
sketch5.addConstraint(Sketcher.Constraint("Horizontal", 14))
sketch5.addConstraint(Sketcher.Constraint("Radius", 1, Q("45.775218 mm")))
sketch5.addConstraint(Sketcher.Constraint("Radius", 3, Q("68.833721 mm")))
sketch5.addConstraint(Sketcher.Constraint("Radius", 13, Q("47.239181 mm")))
sketch5.addConstraint(Sketcher.Constraint("Radius", 15, Q("76.244369 mm")))
sketch5.addConstraint(Sketcher.Constraint("Radius", 5, Q("33.490388 mm")))
sketch5.addConstraint(Sketcher.Constraint("Radius", 7, Q("31.856314 mm")))
sketch5.addConstraint(Sketcher.Constraint("Radius", 9, Q("135.623434 mm")))
sketch5.addConstraint(Sketcher.Constraint("Radius", 11, Q("48.326194 mm")))
sketch5.addConstraint(Sketcher.Constraint("DistanceY", 13, 3, 9, 3, Q("155.446002 mm")))
sketch5.addConstraint(Sketcher.Constraint("DistanceX", 6, 2, 6, 1, Q("74.929329 mm")))
sketch5.addConstraint(Sketcher.Constraint("DistanceX", -1, 1, 0, 2, Q("301.3696 mm")))
sketch5.addConstraint(Sketcher.Constraint("DistanceY", 0, 2, 3, 3, Q("173.701501 mm")))
sketch5.addConstraint(Sketcher.Constraint("DistanceX", 9, 2, 13, 3, Q("74.9553 mm")))
sketch5.addConstraint(Sketcher.Constraint("DistanceX", 14, 2, 15, 2, Q("60.495399 mm")))
sketch5.addConstraint(Sketcher.Constraint("Distance", 8, Q("217.127751 mm")))
sketch5.addConstraint(Sketcher.Constraint("DistanceX", 14, 1, 14, 2, Q("149.842284 mm")))
sketch5.addConstraint(Sketcher.Constraint("DistanceY", 10, 2, 10, 1, Q("119.998904 mm")))
sketch5.addConstraint(Sketcher.Constraint("DistanceY", -1, 1, 1, 3, Q("233.58613 mm")))
sketch5.addConstraint(Sketcher.Constraint("DistanceY", -1, 1, 9, 3, Q("344.039492 mm")))
sketch5.addConstraint(Sketcher.Constraint("DistanceX", -1, 1, 4, 2, Q("217.45158 mm")))
pad2 = doc.addObject("PartDesign::Pad", "Pad001")
body.addObject(pad2)
pad2.Profile = sketch5
pad2.Length = 20

# Sketch on XY plane
sketch6 = doc.addObject("Sketcher::SketchObject", "Sketch005")
body.addObject(sketch6)
sketch6.AttachmentSupport = (doc.XY_Plane, [""])
sketch6.MapMode = "FlatFace"
sketch6.AttachmentOffset = App.Placement(Vector(0, 0, 815.086699), App.Rotation())
sketch6.addGeometry(Part.LineSegment(Vector(285.532054, 121.608505, 0), Vector(32.202011, 121.608505, 0)), False)
sketch6.addGeometry(Part.ArcOfCircle(Part.Circle(Vector(32.202011, 68.58828, 0), Vector(0, 0, 1), 53.020225), math.radians(90.000001), math.radians(179.999999)), False)
sketch6.addGeometry(Part.LineSegment(Vector(-20.818214, 68.58828, 0), Vector(-20.818214, -87.40585, 0)), False)
sketch6.addGeometry(Part.ArcOfCircle(Part.Circle(Vector(35.917424, -87.40585, 0), Vector(0, 0, 1), 56.735638), math.radians(180), math.radians(270)), False)
sketch6.addGeometry(Part.LineSegment(Vector(35.917424, -144.141488, 0), Vector(270.594498, -144.141488, 0)), False)
sketch6.addGeometry(Part.ArcOfCircle(Part.Circle(Vector(270.594499, -97.316935, 0), Vector(0, 0, 1), 46.824553), math.radians(-90.000001), math.radians(0)), False)
sketch6.addGeometry(Part.LineSegment(Vector(317.419052, -97.316935, 0), Vector(317.419052, 89.721507, 0)), False)
sketch6.addGeometry(Part.ArcOfCircle(Part.Circle(Vector(285.532052, 89.721505, 0), Vector(0, 0, 1), 31.887), math.radians(0.000003), math.radians(89.999997)), False)
sketch6.addConstraint(Sketcher.Constraint("Tangent", 0, 2, 1, 1))
sketch6.addConstraint(Sketcher.Constraint("Tangent", 1, 2, 2, 1))
sketch6.addConstraint(Sketcher.Constraint("Tangent", 2, 2, 3, 1))
sketch6.addConstraint(Sketcher.Constraint("Tangent", 3, 2, 4, 1))
sketch6.addConstraint(Sketcher.Constraint("Tangent", 4, 2, 5, 1))
sketch6.addConstraint(Sketcher.Constraint("Tangent", 5, 2, 6, 1))
sketch6.addConstraint(Sketcher.Constraint("Tangent", 6, 2, 7, 1))
sketch6.addConstraint(Sketcher.Constraint("Tangent", 7, 2, 0, 1))
sketch6.addConstraint(Sketcher.Constraint("Horizontal", 0))
sketch6.addConstraint(Sketcher.Constraint("Vertical", 2))
sketch6.addConstraint(Sketcher.Constraint("Horizontal", 4))
sketch6.addConstraint(Sketcher.Constraint("Vertical", 6))
sketch6.addConstraint(Sketcher.Constraint("Radius", 7, Q("31.887 mm")))
sketch6.addConstraint(Sketcher.Constraint("Radius", 1, Q("53.020225 mm")))
sketch6.addConstraint(Sketcher.Constraint("Radius", 3, Q("56.735638 mm")))
sketch6.addConstraint(Sketcher.Constraint("Radius", 5, Q("46.824553 mm")))
sketch6.addConstraint(Sketcher.Constraint("DistanceY", 2, 2, 2, 1, Q("155.99413 mm")))
sketch6.addConstraint(Sketcher.Constraint("DistanceX", -1, 1, 5, 3, Q("270.594499 mm")))
sketch6.addConstraint(Sketcher.Constraint("DistanceX", 0, 2, 0, 1, Q("253.330043 mm")))
sketch6.addConstraint(Sketcher.Constraint("DistanceY", -1, 1, 1, 3, Q("68.58828 mm")))
pad3 = doc.addObject("PartDesign::Pad", "Pad002")
body.addObject(pad3)
pad3.Profile = sketch6
pad3.Length = 60
pad3.Reversed = True

# Sketch on XY plane
sketch7 = doc.addObject("Sketcher::SketchObject", "Sketch006")
body.addObject(sketch7)
sketch7.AttachmentSupport = (doc.XY_Plane, [""])
sketch7.MapMode = "FlatFace"
sketch7.AttachmentOffset = App.Placement(Vector(0, 0, 815.086699), App.Rotation())
sketch7.addGeometry(Part.Circle(Vector(148.605312, -24.969388, 0), Vector(0, 0, 1), 24.969388), False)
sketch7.addConstraint(Sketcher.Constraint("Diameter", 0, Q("49.938776 mm")))
sketch7.addConstraint(Sketcher.Constraint("DistanceX", -1, 1, 0, 3, Q("148.605312 mm")))
sketch7.addConstraint(Sketcher.Constraint("DistanceY", 0, 3, -1, 1, Q("24.969388 mm")))
pad4 = doc.addObject("PartDesign::Pad", "Pad003")
body.addObject(pad4)
pad4.Profile = sketch7
pad4.Length = 10

doc.recompute()
